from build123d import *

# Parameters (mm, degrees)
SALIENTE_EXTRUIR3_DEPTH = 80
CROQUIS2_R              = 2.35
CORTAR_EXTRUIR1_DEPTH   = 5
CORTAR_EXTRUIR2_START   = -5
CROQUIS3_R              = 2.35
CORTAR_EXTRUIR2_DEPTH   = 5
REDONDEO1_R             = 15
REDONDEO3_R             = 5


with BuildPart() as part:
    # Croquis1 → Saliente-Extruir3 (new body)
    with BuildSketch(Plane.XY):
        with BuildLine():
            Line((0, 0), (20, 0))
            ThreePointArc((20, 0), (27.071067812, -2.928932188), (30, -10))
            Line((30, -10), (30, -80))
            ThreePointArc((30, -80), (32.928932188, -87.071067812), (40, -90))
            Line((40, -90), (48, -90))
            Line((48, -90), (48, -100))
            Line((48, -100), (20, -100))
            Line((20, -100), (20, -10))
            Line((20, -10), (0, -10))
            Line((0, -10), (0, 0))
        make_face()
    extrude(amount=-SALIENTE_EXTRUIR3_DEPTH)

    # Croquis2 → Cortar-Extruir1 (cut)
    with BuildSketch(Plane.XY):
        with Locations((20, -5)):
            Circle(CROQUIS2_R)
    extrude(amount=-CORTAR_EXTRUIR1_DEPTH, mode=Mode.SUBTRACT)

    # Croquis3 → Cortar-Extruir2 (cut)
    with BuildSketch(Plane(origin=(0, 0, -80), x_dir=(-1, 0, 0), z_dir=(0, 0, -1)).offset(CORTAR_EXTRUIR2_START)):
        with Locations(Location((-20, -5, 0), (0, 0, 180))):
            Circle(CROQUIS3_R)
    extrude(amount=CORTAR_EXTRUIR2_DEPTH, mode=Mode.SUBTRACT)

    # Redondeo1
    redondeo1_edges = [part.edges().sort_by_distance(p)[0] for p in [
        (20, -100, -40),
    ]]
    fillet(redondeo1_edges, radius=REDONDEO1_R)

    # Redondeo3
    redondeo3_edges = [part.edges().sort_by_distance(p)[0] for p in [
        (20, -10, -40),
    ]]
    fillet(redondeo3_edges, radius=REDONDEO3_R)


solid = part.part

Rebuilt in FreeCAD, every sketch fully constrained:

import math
import FreeCAD as App
import Part
import Sketcher
Q = App.Units.Quantity


def edges_at(feature, points):
    """Names of the edges that pass closest to the given points."""
    edges = feature.Shape.Edges
    near = lambda p: min(range(len(edges)), key=lambda i: edges[i].distToShape(Part.Vertex(*p))[0])
    return sorted({f"Edge{near(p) + 1}" for p in points})

doc = App.newDocument("Part")
body = doc.addObject("PartDesign::Body", "Body")

sketch1 = body.newObject("Sketcher::SketchObject", "Sketch")
sketch1.AttachmentSupport = (doc.getObject("XY_Plane"), [""])
sketch1.MapMode = "FlatFace"
sketch1.addGeometry(Part.LineSegment(App.Vector(20, 0, 0), App.Vector(0, 0, 0)), False)
sketch1.addGeometry(Part.LineSegment(App.Vector(0, 0, 0), App.Vector(0, -10, 0)), False)
sketch1.addGeometry(Part.LineSegment(App.Vector(0, -10, 0), App.Vector(20, -10, 0)), False)
sketch1.addGeometry(Part.LineSegment(App.Vector(20, -10, 0), App.Vector(20, -100, 0)), False)
sketch1.addGeometry(Part.LineSegment(App.Vector(20, -100, 0), App.Vector(48, -100, 0)), False)
sketch1.addGeometry(Part.LineSegment(App.Vector(48, -100, 0), App.Vector(48, -90, 0)), False)
sketch1.addGeometry(Part.LineSegment(App.Vector(48, -90, 0), App.Vector(40, -90, 0)), False)
sketch1.addGeometry(Part.ArcOfCircle(Part.Circle(App.Vector(40, -80, 0), App.Vector(0, 0, 1), 10), math.radians(180), math.radians(270)), False)
sketch1.addGeometry(Part.LineSegment(App.Vector(30, -80, 0), App.Vector(30, -10, 0)), False)
sketch1.addGeometry(Part.ArcOfCircle(Part.Circle(App.Vector(20, -10, 0), App.Vector(0, 0, 1), 10), math.radians(0), math.radians(90)), False)
sketch1.addConstraint(Sketcher.Constraint("Coincident", 0, 2, 1, 1))
sketch1.addConstraint(Sketcher.Constraint("Coincident", 1, 2, 2, 1))
sketch1.addConstraint(Sketcher.Constraint("Coincident", 2, 2, 3, 1))
sketch1.addConstraint(Sketcher.Constraint("Coincident", 3, 2, 4, 1))
sketch1.addConstraint(Sketcher.Constraint("Coincident", 4, 2, 5, 1))
sketch1.addConstraint(Sketcher.Constraint("Coincident", 5, 2, 6, 1))
sketch1.addConstraint(Sketcher.Constraint("Tangent", 6, 2, 7, 2))
sketch1.addConstraint(Sketcher.Constraint("Tangent", 7, 1, 8, 1))
sketch1.addConstraint(Sketcher.Constraint("Tangent", 8, 2, 9, 1))
sketch1.addConstraint(Sketcher.Constraint("Tangent", 9, 2, 0, 1))
sketch1.addConstraint(Sketcher.Constraint("Horizontal", 0))
sketch1.addConstraint(Sketcher.Constraint("Vertical", 1))
sketch1.addConstraint(Sketcher.Constraint("Horizontal", 2))
sketch1.addConstraint(Sketcher.Constraint("Vertical", 3))
sketch1.addConstraint(Sketcher.Constraint("Horizontal", 4))
sketch1.addConstraint(Sketcher.Constraint("Vertical", 5))
sketch1.addConstraint(Sketcher.Constraint("Horizontal", 6))
sketch1.addConstraint(Sketcher.Constraint("Vertical", 8))
sketch1.addConstraint(Sketcher.Constraint("Coincident", 0, 2, -1, 1))
sketch1.addConstraint(Sketcher.Constraint("Coincident", 2, 2, 9, 3))
sketch1.addConstraint(Sketcher.Constraint("Equal", 7, 9))
sketch1.addConstraint(Sketcher.Constraint("Equal", 1, 5))
sketch1.addConstraint(Sketcher.Constraint("Radius", 7, Q("10 mm")))
sketch1.addConstraint(Sketcher.Constraint("DistanceX", 0, 2, 0, 1, Q("20 mm")))
sketch1.addConstraint(Sketcher.Constraint("DistanceX", 4, 1, 4, 2, Q("28 mm")))
sketch1.addConstraint(Sketcher.Constraint("DistanceY", 3, 2, 3, 1, Q("90 mm")))
pad1 = body.newObject("PartDesign::Pad", "Pad")
pad1.Profile = sketch1
pad1.Length = 80
pad1.Reversed = True

sketch2 = body.newObject("Sketcher::SketchObject", "Sketch001")
sketch2.AttachmentSupport = (doc.getObject("XY_Plane"), [""])
sketch2.MapMode = "FlatFace"
sketch2.addGeometry(Part.Circle(App.Vector(20, -5, 0), App.Vector(0, 0, 1), 2.4), False)
sketch2.addConstraint(Sketcher.Constraint("Diameter", 0, Q("4.7 mm")))
sketch2.addConstraint(Sketcher.Constraint("DistanceX", -1, 1, 0, 3, Q("20 mm")))
sketch2.addConstraint(Sketcher.Constraint("DistanceY", 0, 3, -1, 1, Q("5 mm")))
pocket1 = body.newObject("PartDesign::Pocket", "Pocket")
pocket1.Profile = sketch2
pocket1.Length = 5

sketch3 = body.newObject("Sketcher::SketchObject", "Sketch002")
sketch3.AttachmentSupport = (doc.getObject("XY_Plane"), [""])
sketch3.MapMode = "FlatFace"
sketch3.AttachmentOffset = App.Placement(App.Vector(0, 0, -75), App.Rotation())
sketch3.addGeometry(Part.Circle(App.Vector(20, -5, 0), App.Vector(0, 0, 1), 2.4), False)
sketch3.addConstraint(Sketcher.Constraint("Diameter", 0, Q("4.7 mm")))
sketch3.addConstraint(Sketcher.Constraint("DistanceX", -1, 1, 0, 3, Q("20 mm")))
sketch3.addConstraint(Sketcher.Constraint("DistanceY", 0, 3, -1, 1, Q("5 mm")))
pocket2 = body.newObject("PartDesign::Pocket", "Pocket001")
pocket2.Profile = sketch3
pocket2.Length = 5
doc.recompute()

fillet = body.newObject("PartDesign::Fillet", "Fillet")
fillet.Base = (pocket2, edges_at(pocket2, [(20, -100, -40)]))
fillet.Radius = 15
doc.recompute()

fillet2 = body.newObject("PartDesign::Fillet", "Fillet001")
fillet2.Base = (fillet, edges_at(fillet, [(20, -10, -40)]))
fillet2.Radius = 5

doc.recompute()
